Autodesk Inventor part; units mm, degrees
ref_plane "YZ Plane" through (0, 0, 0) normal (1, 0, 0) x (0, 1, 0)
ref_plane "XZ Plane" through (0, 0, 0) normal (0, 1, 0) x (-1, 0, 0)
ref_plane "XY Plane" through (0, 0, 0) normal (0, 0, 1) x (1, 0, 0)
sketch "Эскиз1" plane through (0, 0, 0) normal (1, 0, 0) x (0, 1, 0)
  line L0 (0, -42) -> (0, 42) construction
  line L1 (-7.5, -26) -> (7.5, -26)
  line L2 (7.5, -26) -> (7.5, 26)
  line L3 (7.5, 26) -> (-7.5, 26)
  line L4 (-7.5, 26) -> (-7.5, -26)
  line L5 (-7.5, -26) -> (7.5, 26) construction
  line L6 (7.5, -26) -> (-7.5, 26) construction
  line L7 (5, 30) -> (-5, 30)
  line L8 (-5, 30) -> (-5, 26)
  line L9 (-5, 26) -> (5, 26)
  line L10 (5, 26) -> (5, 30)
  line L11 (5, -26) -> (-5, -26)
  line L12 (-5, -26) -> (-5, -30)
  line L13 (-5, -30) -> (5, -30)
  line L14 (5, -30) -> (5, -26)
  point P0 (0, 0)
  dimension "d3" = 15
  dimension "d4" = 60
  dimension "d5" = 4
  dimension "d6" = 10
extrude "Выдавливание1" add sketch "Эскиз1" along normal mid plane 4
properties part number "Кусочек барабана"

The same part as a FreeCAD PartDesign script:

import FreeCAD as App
import Part
import Sketcher

V = App.Vector
Q = App.Units.Quantity

doc = App.newDocument("Part")
body = doc.addObject("PartDesign::Body", "Body")

sketch1 = body.newObject("Sketcher::SketchObject", "Sketch")
sketch1.AttachmentSupport = (doc.getObject("YZ_Plane"), [""])
sketch1.MapMode = "FlatFace"
sketch1.addGeometry([
    Part.LineSegment(V(-7.5, 26, 0), V(-7.5, -26, 0)),
    Part.LineSegment(V(-7.5, -26, 0), V(-5, -26, 0)),
    Part.LineSegment(V(-5, -26, 0), V(-5, -30, 0)),
    Part.LineSegment(V(-5, -30, 0), V(5, -30, 0)),
    Part.LineSegment(V(5, -30, 0), V(5, -26, 0)),
    Part.LineSegment(V(5, -26, 0), V(7.5, -26, 0)),
    Part.LineSegment(V(7.5, -26, 0), V(7.5, 26, 0)),
    Part.LineSegment(V(7.5, 26, 0), V(5, 26, 0)),
    Part.LineSegment(V(5, 26, 0), V(5, 30, 0)),
    Part.LineSegment(V(5, 30, 0), V(-5, 30, 0)),
    Part.LineSegment(V(-5, 30, 0), V(-5, 26, 0)),
    Part.LineSegment(V(-5, 26, 0), V(-7.5, 26, 0)),
], False)
sketch1.addConstraint([
    Sketcher.Constraint("Coincident", 0, 2, 1, 1),
    Sketcher.Constraint("Coincident", 1, 2, 2, 1),
    Sketcher.Constraint("Coincident", 2, 2, 3, 1),
    Sketcher.Constraint("Coincident", 3, 2, 4, 1),
    Sketcher.Constraint("Coincident", 4, 2, 5, 1),
    Sketcher.Constraint("Coincident", 5, 2, 6, 1),
    Sketcher.Constraint("Coincident", 6, 2, 7, 1),
    Sketcher.Constraint("Coincident", 7, 2, 8, 1),
    Sketcher.Constraint("Coincident", 8, 2, 9, 1),
    Sketcher.Constraint("Coincident", 9, 2, 10, 1),
    Sketcher.Constraint("Coincident", 10, 2, 11, 1),
    Sketcher.Constraint("Coincident", 11, 2, 0, 1),
    Sketcher.Constraint("Vertical", 0),
    Sketcher.Constraint("Horizontal", 1),
    Sketcher.Constraint("Vertical", 2),
    Sketcher.Constraint("Horizontal", 3),
    Sketcher.Constraint("Vertical", 4),
    Sketcher.Constraint("Horizontal", 5),
    Sketcher.Constraint("Vertical", 6),
    Sketcher.Constraint("Horizontal", 7),
    Sketcher.Constraint("Vertical", 8),
    Sketcher.Constraint("Horizontal", 9),
    Sketcher.Constraint("Vertical", 10),
    Sketcher.Constraint("Horizontal", 11),
    Sketcher.Constraint("Symmetric", 0, 2, 6, 2, -1, 1),
    Sketcher.Constraint("Symmetric", 2, 2, 8, 2, -1, 1),
    Sketcher.Constraint("Symmetric", 4, 2, 10, 2, -1, 1),
    Sketcher.Constraint("Symmetric", 1, 2, 4, 2, -2),
    Sketcher.Constraint("DistanceX", 3, 1, 3, 2, Q("10 mm")),
    Sketcher.Constraint("DistanceY", 2, 2, 2, 1, Q("4 mm")),
    Sketcher.Constraint("DistanceX", 0, 2, 5, 2, Q("15 mm")),
    Sketcher.Constraint("DistanceY", 0, 2, 0, 1, Q("52 mm")),
])
pad1 = body.newObject("PartDesign::Pad", "Pad")
pad1.Profile = sketch1
pad1.Length = 4
pad1.Midplane = True

doc.recompute()
